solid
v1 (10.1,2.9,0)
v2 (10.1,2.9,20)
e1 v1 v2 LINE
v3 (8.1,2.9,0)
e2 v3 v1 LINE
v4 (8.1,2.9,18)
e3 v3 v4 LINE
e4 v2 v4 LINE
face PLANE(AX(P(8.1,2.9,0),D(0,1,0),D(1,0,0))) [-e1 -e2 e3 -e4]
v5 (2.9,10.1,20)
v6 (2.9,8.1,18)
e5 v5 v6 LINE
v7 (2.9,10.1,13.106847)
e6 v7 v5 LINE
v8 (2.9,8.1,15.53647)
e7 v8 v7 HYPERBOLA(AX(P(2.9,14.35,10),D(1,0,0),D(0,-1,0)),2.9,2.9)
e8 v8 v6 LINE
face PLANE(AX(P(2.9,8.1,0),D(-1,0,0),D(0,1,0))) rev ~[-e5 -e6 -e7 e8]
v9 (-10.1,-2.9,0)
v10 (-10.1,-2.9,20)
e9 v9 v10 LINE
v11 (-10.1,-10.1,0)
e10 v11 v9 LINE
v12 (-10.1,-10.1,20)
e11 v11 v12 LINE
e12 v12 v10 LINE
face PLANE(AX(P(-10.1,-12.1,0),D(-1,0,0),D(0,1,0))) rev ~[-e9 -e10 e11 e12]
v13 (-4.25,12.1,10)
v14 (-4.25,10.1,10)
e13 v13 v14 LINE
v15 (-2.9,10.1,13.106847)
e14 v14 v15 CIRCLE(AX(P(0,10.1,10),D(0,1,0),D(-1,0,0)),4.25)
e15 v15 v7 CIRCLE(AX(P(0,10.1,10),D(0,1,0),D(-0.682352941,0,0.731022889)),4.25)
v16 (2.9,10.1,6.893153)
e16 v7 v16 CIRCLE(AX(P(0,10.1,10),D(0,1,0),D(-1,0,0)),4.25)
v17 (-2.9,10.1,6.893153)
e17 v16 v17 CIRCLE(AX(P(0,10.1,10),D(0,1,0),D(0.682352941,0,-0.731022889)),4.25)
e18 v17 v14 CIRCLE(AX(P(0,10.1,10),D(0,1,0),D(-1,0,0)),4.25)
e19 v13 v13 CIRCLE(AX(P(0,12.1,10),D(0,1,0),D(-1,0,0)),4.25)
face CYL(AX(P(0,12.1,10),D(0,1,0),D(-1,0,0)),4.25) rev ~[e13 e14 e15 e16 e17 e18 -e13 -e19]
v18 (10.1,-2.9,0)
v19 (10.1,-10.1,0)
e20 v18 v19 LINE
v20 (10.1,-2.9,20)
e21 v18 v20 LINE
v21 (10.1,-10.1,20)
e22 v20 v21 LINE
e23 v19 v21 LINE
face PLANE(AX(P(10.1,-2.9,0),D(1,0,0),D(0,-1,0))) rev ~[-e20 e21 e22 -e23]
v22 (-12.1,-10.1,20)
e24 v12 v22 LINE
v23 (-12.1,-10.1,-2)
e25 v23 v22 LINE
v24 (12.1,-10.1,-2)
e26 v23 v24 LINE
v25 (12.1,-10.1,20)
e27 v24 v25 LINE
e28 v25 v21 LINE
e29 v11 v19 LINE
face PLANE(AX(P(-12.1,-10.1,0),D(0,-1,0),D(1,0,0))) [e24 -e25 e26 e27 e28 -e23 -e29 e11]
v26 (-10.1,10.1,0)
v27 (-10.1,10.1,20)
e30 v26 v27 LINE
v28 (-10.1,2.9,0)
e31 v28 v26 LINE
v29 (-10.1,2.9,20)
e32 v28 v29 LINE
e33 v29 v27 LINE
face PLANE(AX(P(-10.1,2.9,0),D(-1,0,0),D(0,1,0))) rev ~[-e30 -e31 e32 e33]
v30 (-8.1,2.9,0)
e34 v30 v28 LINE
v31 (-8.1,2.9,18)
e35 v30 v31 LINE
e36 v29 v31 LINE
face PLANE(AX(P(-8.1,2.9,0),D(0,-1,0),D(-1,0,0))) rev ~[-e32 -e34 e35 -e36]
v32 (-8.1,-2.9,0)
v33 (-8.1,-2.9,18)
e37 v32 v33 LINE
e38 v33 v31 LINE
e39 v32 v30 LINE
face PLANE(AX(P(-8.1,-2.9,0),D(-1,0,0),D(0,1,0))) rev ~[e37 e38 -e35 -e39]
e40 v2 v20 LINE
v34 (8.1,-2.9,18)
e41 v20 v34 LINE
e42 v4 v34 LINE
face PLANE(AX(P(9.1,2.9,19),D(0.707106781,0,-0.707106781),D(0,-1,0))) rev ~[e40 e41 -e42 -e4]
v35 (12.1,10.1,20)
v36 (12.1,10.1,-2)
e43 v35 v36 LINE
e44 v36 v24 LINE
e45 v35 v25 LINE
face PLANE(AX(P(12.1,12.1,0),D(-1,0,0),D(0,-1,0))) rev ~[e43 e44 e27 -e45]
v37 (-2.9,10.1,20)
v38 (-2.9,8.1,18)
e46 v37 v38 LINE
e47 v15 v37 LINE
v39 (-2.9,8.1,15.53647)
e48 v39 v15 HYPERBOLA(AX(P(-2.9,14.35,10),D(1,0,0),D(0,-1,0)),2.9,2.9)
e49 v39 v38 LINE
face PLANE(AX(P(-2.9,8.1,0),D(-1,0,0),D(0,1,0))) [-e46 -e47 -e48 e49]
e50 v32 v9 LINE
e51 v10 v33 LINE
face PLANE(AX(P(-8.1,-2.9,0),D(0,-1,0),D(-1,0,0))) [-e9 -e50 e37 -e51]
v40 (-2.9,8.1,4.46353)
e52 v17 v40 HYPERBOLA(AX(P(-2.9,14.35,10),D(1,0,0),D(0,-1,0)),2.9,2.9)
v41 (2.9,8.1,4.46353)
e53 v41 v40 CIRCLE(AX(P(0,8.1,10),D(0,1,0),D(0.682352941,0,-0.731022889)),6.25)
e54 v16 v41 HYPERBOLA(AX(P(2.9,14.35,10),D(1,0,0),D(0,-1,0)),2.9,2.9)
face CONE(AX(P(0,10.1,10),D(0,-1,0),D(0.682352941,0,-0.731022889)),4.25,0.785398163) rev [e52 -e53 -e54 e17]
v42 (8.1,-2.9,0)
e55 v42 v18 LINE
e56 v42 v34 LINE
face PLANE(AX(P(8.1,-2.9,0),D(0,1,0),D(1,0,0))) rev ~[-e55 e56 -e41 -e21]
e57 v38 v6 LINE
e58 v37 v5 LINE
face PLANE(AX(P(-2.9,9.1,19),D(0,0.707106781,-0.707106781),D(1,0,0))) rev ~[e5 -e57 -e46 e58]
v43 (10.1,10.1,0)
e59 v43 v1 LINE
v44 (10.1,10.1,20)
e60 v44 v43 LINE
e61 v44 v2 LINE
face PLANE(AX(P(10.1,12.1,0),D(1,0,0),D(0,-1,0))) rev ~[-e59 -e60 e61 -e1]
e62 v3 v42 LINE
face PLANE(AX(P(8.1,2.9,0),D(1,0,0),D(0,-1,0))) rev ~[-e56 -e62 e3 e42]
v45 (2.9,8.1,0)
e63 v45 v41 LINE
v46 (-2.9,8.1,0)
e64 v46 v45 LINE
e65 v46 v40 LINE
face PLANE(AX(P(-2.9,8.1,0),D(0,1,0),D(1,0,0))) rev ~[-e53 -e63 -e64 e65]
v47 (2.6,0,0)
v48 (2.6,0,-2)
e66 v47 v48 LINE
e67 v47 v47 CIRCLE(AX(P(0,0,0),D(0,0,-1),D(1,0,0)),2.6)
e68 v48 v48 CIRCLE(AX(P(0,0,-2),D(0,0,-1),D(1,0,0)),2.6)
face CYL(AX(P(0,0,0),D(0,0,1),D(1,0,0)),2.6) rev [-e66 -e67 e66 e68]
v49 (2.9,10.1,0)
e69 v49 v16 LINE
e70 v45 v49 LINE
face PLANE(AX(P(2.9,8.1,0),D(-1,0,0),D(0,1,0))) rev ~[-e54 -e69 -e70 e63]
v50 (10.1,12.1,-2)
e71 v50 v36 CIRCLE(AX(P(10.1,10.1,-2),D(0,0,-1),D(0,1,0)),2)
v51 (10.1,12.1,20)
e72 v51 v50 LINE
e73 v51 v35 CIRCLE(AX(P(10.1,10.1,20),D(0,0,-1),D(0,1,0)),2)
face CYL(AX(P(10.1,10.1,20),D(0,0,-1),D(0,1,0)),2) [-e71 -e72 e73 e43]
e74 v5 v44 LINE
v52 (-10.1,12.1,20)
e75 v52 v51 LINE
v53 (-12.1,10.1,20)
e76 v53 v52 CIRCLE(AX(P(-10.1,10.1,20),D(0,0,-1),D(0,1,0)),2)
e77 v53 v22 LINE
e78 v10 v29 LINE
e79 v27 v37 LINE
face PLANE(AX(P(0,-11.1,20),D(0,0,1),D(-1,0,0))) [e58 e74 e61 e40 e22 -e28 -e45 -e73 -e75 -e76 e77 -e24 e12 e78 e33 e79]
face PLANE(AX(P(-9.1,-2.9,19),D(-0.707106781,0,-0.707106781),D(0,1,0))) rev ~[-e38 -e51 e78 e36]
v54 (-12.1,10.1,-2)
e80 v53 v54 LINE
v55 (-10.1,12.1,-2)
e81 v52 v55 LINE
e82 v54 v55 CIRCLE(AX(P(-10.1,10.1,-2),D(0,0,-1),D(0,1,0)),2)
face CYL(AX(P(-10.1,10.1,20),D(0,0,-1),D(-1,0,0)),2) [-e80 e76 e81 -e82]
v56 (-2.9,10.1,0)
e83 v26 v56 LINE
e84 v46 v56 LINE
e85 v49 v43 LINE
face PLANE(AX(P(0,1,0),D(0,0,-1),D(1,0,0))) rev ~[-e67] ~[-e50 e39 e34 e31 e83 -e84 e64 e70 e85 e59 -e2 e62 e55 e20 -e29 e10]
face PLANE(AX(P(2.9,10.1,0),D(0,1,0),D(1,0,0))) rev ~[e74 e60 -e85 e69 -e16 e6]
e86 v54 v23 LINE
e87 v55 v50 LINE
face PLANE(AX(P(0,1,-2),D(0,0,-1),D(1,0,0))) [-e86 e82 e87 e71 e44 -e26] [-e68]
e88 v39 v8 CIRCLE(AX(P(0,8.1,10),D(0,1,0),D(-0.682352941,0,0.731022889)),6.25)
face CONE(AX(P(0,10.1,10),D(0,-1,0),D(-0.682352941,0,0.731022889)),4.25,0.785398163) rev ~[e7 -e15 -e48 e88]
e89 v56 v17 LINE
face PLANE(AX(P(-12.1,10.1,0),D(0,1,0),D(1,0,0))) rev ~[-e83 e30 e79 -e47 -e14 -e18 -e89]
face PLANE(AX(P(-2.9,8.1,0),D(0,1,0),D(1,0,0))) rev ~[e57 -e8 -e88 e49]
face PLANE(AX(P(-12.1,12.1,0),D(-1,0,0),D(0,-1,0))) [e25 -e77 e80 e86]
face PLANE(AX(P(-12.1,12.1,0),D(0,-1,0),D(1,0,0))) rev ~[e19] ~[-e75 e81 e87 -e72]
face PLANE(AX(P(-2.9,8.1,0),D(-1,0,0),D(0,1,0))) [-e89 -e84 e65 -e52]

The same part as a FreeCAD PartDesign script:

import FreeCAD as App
import Part
import Sketcher
from FreeCAD import Vector


def edges_at(feature, points):
    """Names of the edges that pass closest to the given points."""
    edges = feature.Shape.Edges
    near = lambda p: min(range(len(edges)), key=lambda i: edges[i].distToShape(Part.Vertex(*p))[0])
    return sorted({f"Edge{near(p) + 1}" for p in points})


def add_polygon(sketch, points):
    """Adds a closed chain of lines whose ends are joined by coincident constraints."""
    first, n = sketch.GeometryCount, len(points)
    for a, b in zip(points, points[1:] + points[:1]):
        sketch.addGeometry(Part.LineSegment(App.Vector(*a, 0), App.Vector(*b, 0)), False)
    for i in range(n):
        sketch.addConstraint(Sketcher.Constraint("Coincident", first + i, 2, first + (i + 1) % n, 1))

doc = App.newDocument("Part")
body = doc.addObject("PartDesign::Body", "Body")

# Sketch on XY plane
sketch1 = body.newObject("Sketcher::SketchObject", "Sketch")
sketch1.AttachmentSupport = (doc.getObject("XY_Plane"), [""])
sketch1.MapMode = "FlatFace"
add_polygon(sketch1, [(-12.1, 12.1), (-12.1, 10.1), (-2.9, 10.1), (-2.9, 8.1), (2.9, 8.1), (2.9, 10.1), (12.1, 10.1), (12.1, 12.1)])  # lines 0-7
sketch1.addConstraint([
    Sketcher.Constraint("Vertical", 0),
    Sketcher.Constraint("Horizontal", 1),
    Sketcher.Constraint("Vertical", 2),
    Sketcher.Constraint("Horizontal", 3),
    Sketcher.Constraint("Vertical", 4),
    Sketcher.Constraint("Horizontal", 5),
    Sketcher.Constraint("Vertical", 6),
    Sketcher.Constraint("Horizontal", 7),
    Sketcher.Constraint("Symmetric", 1, 2, 4, 2, -2),
    Sketcher.Constraint("Equal", 1, 5),
    Sketcher.Constraint("Equal", 0, 2),
    Sketcher.Constraint("DistanceY", 0, 2, 0, 1, 2.0),
    Sketcher.Constraint("DistanceX", 1, 1, 1, 2, 9.2),
    Sketcher.Constraint("DistanceX", 3, 1, 3, 2, 5.8),
    Sketcher.Constraint("DistanceY", -1, 1, 0, 2, 10.1),
])
pad1 = body.newObject("PartDesign::Pad", "Pad")
pad1.Profile = sketch1
pad1.Length = 20
body2 = doc.addObject("PartDesign::Body", "Body001")
doc.recompute()

body2.BaseFeature = body
doc.recompute()

body3 = doc.addObject("PartDesign::Body", "Body002")
body3.BaseFeature = body
body3.Placement = App.Placement(Vector(0, 0, 0), App.Rotation(Vector(0, 0, 1), 90))
boolean = body2.newObject("PartDesign::Boolean", "Boolean")
boolean.Type = "Fuse"
boolean.addObjects([body3])
doc.recompute()

body4 = doc.addObject("PartDesign::Body", "Body003")
body4.BaseFeature = body
body4.Placement = App.Placement(Vector(0, 0, 0), App.Rotation(Vector(0, 0, 1), 180))
boolean2 = body2.newObject("PartDesign::Boolean", "Boolean001")
boolean2.Type = "Fuse"
boolean2.addObjects([body4])
doc.recompute()

body.Placement = App.Placement(Vector(0, 0, 0), App.Rotation(Vector(0, 0, 1), 270))
boolean3 = body2.newObject("PartDesign::Boolean", "Boolean002")
boolean3.Type = "Fuse"
boolean3.addObjects([body])

# Sketch on XZ plane
sketch2 = body2.newObject("Sketcher::SketchObject", "Sketch001")
sketch2.AttachmentSupport = (doc.getObject("XZ_Plane001"), [""])
sketch2.MapMode = "FlatFace"
sketch2.AttachmentOffset = App.Placement(Vector(0, 0, -12.1), App.Rotation())
sketch2.addGeometry(Part.Circle(Vector(0, 10, 0), Vector(0, 0, 1), 4.2), False)
sketch2.addConstraint([
    Sketcher.Constraint("PointOnObject", 0, 3, -2),
    Sketcher.Constraint("Diameter", 0, 8.5),
    Sketcher.Constraint("DistanceY", -1, 1, 0, 3, 10.0),
])
pocket1 = body2.newObject("PartDesign::Pocket", "Pocket")
pocket1.Profile = sketch2
pocket1.Type = "ThroughAll"
pocket1.Reversed = True

# Sketch on XY plane
sketch3 = body2.newObject("Sketcher::SketchObject", "Sketch002")
sketch3.AttachmentSupport = (doc.getObject("XY_Plane001"), [""])
sketch3.MapMode = "FlatFace"
sketch3.AttachmentOffset = App.Placement(Vector(0, 0, 20), App.Rotation())
add_polygon(sketch3, [(-2.9, -8.1), (-10.1, -10.1), (-12.1, -10.1), (-12.1, -12.1), (12.1, -12.1), (12.1, -10.1), (10.1, -10.1), (2.9, -8.1)])  # lines 0-7
sketch3.addConstraint([
    Sketcher.Constraint("Horizontal", 1),
    Sketcher.Constraint("Vertical", 2),
    Sketcher.Constraint("Horizontal", 3),
    Sketcher.Constraint("Vertical", 4),
    Sketcher.Constraint("Horizontal", 5),
    Sketcher.Constraint("Horizontal", 7),
    Sketcher.Constraint("Symmetric", 1, 2, 4, 2, -2),
    Sketcher.Constraint("Equal", 1, 5),
    Sketcher.Constraint("Equal", 5, 2),
    Sketcher.Constraint("Equal", 0, 6),
    Sketcher.Constraint("DistanceX", 1, 2, 1, 1, 2.0),
    Sketcher.Constraint("DistanceX", 3, 1, 3, 2, 24.2),
    Sketcher.Constraint("DistanceX", 7, 2, 7, 1, 5.8),
    Sketcher.Constraint("DistanceY", 5, 2, 6, 2, 2.0),
    Sketcher.Constraint("DistanceY", 0, 2, -1, 1, 10.1),
])
pocket2 = body2.newObject("PartDesign::Pocket", "Pocket001")
pocket2.Profile = sketch3
pocket2.Type = "ThroughAll"

# Sketch on XY plane
sketch4 = body2.newObject("Sketcher::SketchObject", "Sketch003")
sketch4.AttachmentSupport = (doc.getObject("XY_Plane001"), [""])
sketch4.MapMode = "FlatFace"
add_polygon(sketch4, [(-12.1, -10.1), (-12.1, 12.1), (12.1, 12.1), (12.1, -10.1)])  # lines 0-3
sketch4.addGeometry(Part.Circle(Vector(0, 0, 0), Vector(0, 0, 1), 2.6), False)  # 4
sketch4.addConstraint([
    Sketcher.Constraint("Vertical", 0),
    Sketcher.Constraint("Horizontal", 1),
    Sketcher.Constraint("Vertical", 2),
    Sketcher.Constraint("Horizontal", 3),
    Sketcher.Constraint("Coincident", 4, 3, -1, 1),
    Sketcher.Constraint("Diameter", 4, 5.2),
    Sketcher.Constraint("DistanceX", 1, 1, 1, 2, 24.2),
    Sketcher.Constraint("DistanceY", 0, 1, 0, 2, 22.2),
    Sketcher.Constraint("DistanceX", 0, 2, -1, 1, 12.1),
    Sketcher.Constraint("DistanceY", -1, 1, 0, 2, 12.1),
])
pad2 = body2.newObject("PartDesign::Pad", "Pad001")
pad2.Profile = sketch4
pad2.Length = 2
pad2.Reversed = True
doc.recompute()

fillet = body2.newObject("PartDesign::Fillet", "Fillet")
fillet.Base = (pad2, edges_at(pad2, [(-12.1, 12.1, 9), (12.1, 12.1, 9)]))
fillet.Radius = 2
doc.recompute()

chamfer = body2.newObject("PartDesign::Chamfer", "Chamfer")
chamfer.Base = (fillet, edges_at(fillet, [
    (0, 8.1, 5.75),
    (0, 8.1, 14.25),
    (-8.1, 0, 20),
    (0, 8.1, 20),
    (8.1, 0, 20),
]))
chamfer.Size = 2

doc.recompute()
